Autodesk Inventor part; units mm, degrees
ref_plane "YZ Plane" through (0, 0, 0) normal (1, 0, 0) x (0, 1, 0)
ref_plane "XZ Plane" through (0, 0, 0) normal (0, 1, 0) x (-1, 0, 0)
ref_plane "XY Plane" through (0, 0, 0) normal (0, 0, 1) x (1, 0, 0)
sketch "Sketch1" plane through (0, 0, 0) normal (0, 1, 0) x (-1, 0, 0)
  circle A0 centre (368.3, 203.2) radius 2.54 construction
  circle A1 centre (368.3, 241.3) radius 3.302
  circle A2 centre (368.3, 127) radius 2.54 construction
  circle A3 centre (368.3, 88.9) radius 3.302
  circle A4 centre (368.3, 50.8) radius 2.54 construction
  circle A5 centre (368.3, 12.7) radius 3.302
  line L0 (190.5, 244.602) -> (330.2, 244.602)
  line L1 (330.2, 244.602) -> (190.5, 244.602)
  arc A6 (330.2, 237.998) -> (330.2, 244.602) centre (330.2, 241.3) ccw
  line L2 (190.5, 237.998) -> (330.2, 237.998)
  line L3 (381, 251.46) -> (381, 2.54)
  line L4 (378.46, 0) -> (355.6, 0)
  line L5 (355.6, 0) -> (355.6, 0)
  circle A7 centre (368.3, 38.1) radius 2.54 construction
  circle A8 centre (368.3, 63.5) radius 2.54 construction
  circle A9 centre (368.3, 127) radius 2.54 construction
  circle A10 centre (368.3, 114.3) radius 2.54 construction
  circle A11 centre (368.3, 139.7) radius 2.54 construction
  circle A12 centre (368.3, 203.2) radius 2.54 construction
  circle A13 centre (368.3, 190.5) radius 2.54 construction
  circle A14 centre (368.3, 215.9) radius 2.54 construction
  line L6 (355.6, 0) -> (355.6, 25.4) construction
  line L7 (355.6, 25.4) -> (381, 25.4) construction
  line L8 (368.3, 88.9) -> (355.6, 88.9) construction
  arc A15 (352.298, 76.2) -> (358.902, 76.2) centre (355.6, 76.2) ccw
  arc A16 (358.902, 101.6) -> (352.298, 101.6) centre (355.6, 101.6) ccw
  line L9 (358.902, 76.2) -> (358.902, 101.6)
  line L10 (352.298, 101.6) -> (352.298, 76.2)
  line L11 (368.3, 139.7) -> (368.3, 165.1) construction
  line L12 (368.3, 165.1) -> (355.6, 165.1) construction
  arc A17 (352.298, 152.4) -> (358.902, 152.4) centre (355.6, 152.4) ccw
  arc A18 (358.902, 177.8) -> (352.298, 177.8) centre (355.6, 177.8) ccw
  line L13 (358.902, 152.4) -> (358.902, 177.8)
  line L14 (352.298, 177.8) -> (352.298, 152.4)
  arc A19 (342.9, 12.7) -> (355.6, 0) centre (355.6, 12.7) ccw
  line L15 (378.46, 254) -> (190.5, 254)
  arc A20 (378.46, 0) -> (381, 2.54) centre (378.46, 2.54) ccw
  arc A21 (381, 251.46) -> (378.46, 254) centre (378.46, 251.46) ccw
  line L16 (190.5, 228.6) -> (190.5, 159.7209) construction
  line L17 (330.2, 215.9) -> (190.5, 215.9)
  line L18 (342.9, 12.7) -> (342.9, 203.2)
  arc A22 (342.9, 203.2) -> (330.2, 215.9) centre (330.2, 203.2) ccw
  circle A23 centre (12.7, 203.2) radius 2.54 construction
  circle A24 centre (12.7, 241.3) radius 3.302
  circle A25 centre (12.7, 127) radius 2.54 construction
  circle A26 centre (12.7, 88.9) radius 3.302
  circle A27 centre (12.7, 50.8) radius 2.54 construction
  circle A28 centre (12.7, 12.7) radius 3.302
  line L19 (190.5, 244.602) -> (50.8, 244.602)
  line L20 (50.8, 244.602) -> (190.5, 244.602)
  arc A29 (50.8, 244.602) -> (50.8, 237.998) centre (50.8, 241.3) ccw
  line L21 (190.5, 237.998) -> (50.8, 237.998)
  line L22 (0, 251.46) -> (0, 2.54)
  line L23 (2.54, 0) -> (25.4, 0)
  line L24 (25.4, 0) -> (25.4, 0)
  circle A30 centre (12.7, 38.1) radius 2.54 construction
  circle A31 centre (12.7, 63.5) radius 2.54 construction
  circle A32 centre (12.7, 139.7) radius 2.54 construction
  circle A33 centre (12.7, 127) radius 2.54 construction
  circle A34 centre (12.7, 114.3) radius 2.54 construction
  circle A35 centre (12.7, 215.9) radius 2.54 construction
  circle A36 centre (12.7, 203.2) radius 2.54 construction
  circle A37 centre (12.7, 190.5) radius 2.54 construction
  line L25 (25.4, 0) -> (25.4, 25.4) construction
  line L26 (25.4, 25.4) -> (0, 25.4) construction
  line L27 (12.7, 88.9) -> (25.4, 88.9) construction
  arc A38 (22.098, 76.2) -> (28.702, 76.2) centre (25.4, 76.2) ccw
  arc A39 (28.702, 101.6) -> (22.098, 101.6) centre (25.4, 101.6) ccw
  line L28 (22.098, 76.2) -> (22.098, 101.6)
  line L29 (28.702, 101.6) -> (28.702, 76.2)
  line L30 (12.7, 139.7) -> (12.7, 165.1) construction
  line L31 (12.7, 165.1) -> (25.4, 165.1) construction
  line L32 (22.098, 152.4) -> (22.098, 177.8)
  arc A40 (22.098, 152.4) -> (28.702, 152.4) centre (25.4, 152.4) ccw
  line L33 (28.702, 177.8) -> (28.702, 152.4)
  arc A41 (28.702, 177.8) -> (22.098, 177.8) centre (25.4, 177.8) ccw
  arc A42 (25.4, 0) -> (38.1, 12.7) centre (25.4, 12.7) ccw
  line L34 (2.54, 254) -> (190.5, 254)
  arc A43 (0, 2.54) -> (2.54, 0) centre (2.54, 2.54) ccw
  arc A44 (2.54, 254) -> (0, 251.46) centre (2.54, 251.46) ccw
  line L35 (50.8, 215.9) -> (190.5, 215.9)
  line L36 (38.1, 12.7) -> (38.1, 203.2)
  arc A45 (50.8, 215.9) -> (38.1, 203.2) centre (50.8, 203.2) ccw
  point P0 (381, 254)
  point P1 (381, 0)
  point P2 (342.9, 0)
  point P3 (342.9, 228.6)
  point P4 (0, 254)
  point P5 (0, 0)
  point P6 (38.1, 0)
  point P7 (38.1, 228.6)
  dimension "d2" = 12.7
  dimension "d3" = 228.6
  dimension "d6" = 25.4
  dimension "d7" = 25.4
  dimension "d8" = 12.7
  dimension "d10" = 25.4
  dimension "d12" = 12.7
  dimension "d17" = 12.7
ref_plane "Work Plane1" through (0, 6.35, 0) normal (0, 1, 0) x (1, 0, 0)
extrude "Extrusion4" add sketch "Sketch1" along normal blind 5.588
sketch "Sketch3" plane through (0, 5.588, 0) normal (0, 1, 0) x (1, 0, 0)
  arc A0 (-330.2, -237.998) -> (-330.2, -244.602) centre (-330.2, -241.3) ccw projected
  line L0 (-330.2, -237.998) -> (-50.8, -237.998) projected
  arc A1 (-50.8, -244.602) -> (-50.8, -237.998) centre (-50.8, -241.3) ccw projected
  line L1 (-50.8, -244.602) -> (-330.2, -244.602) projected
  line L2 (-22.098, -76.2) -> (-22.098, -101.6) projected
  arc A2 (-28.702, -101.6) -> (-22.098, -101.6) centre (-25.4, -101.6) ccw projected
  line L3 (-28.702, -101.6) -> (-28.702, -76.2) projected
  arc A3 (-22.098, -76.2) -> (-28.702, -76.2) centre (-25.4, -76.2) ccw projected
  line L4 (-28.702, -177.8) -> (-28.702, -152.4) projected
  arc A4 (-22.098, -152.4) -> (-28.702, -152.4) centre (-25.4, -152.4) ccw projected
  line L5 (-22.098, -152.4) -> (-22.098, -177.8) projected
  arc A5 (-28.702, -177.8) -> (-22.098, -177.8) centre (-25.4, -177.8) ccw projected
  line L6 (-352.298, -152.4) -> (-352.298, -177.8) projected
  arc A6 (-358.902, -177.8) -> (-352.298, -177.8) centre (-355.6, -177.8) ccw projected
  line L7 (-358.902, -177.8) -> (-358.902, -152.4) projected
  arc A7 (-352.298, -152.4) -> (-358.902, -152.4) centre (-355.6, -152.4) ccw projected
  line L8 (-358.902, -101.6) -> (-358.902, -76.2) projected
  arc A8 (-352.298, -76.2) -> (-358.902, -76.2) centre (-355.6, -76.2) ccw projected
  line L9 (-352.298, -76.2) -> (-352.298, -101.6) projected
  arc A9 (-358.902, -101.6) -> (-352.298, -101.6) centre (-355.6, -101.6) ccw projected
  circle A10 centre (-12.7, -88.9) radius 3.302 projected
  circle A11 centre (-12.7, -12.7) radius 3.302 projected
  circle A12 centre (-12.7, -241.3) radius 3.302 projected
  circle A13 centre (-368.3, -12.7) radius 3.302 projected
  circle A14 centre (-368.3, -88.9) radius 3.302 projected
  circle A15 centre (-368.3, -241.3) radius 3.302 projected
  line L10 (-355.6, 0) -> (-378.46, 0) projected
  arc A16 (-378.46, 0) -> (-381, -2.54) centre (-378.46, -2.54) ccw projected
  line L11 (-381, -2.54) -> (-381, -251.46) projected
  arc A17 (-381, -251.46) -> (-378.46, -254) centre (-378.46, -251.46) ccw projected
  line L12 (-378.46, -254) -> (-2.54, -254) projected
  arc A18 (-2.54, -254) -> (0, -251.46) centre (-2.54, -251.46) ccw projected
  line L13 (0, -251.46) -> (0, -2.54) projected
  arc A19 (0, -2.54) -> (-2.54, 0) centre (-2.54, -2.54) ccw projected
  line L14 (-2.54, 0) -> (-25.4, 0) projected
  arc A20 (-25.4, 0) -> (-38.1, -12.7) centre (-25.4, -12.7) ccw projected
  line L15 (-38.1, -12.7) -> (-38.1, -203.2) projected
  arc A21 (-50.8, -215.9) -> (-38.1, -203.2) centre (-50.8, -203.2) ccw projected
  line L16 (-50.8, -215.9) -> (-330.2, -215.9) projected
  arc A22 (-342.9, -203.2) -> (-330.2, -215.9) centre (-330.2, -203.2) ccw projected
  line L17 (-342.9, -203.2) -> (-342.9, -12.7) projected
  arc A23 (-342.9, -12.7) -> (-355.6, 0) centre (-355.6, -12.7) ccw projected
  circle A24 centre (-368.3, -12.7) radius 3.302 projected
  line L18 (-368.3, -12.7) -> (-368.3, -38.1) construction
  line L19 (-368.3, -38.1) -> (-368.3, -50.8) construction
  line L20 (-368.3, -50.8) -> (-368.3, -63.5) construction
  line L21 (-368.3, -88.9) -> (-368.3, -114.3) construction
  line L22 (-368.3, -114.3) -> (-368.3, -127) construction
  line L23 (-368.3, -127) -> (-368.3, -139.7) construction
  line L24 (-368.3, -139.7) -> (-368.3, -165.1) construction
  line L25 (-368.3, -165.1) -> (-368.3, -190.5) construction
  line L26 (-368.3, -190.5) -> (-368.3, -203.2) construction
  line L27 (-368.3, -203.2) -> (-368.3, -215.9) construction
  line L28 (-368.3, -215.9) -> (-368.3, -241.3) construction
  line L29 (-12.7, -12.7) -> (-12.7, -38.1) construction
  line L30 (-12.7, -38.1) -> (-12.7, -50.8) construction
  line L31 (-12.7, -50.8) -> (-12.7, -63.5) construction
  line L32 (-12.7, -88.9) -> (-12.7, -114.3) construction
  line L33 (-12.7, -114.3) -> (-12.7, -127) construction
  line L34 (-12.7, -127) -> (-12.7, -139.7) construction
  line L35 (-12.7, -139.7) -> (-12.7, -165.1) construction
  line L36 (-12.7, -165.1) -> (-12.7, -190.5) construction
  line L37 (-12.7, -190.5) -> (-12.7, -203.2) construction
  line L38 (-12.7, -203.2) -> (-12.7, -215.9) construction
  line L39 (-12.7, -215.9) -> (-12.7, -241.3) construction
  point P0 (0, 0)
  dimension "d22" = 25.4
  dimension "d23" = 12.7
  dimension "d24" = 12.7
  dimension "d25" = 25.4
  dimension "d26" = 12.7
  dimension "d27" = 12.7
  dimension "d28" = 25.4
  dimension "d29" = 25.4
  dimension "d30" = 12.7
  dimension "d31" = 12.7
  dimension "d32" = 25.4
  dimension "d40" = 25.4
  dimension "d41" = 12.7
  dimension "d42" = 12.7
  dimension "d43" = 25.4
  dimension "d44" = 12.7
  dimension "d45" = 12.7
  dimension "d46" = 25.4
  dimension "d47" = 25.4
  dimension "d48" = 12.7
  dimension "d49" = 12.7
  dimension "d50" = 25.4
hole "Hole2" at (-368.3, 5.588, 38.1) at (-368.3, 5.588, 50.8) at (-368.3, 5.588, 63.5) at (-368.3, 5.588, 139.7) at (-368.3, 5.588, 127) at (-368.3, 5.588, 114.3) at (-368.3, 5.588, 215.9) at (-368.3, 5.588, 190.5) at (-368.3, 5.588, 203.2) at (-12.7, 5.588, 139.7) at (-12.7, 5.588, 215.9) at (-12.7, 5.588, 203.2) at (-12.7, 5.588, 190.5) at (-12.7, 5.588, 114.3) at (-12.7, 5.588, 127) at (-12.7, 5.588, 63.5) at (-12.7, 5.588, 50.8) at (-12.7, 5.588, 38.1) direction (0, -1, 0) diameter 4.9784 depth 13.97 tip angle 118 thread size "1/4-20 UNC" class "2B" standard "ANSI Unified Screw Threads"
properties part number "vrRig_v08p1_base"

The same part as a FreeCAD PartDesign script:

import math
import FreeCAD as App
import Part
import Sketcher

V = App.Vector
Q = App.Units.Quantity

doc = App.newDocument("Part")
body = doc.addObject("PartDesign::Body", "Body")

# Sketch on XZ plane
sketch1 = body.newObject("Sketcher::SketchObject", "Sketch")
sketch1.AttachmentSupport = (doc.getObject("XZ_Plane"), [""])
sketch1.MapMode = "FlatFace"
sketch1.addGeometry(Part.LineSegment(V(-381, 2.54, 0), V(-381, 251.46, 0)), False)
sketch1.addGeometry(Part.ArcOfCircle(Part.Circle(V(-378.46, 251.46, 0), V(0, 0, 1), 2.54), math.radians(90), math.radians(180)), False)
sketch1.addGeometry(Part.LineSegment(V(-378.46, 254, 0), V(-2.54, 254, 0)), False)
sketch1.addGeometry(Part.ArcOfCircle(Part.Circle(V(-2.54, 251.46, 0), V(0, 0, 1), 2.54), math.radians(0), math.radians(90)), False)
sketch1.addGeometry(Part.LineSegment(V(0, 251.46, 0), V(0, 2.54, 0)), False)
sketch1.addGeometry(Part.ArcOfCircle(Part.Circle(V(-2.54, 2.54, 0), V(0, 0, 1), 2.54), math.radians(-90), math.radians(0)), False)
sketch1.addGeometry(Part.LineSegment(V(-2.54, 0, 0), V(-25.4, 0, 0)), False)
sketch1.addGeometry(Part.ArcOfCircle(Part.Circle(V(-25.4, 12.7, 0), V(0, 0, 1), 12.7), math.radians(180), math.radians(270)), False)
sketch1.addGeometry(Part.LineSegment(V(-38.1, 12.7, 0), V(-38.1, 203.2, 0)), False)
sketch1.addGeometry(Part.ArcOfCircle(Part.Circle(V(-50.8, 203.2, 0), V(0, 0, 1), 12.7), math.radians(0), math.radians(90)), False)
sketch1.addGeometry(Part.LineSegment(V(-50.8, 215.9, 0), V(-330.2, 215.9, 0)), False)
sketch1.addGeometry(Part.ArcOfCircle(Part.Circle(V(-330.2, 203.2, 0), V(0, 0, 1), 12.7), math.radians(90), math.radians(180)), False)
sketch1.addGeometry(Part.LineSegment(V(-342.9, 203.2, 0), V(-342.9, 12.7, 0)), False)
sketch1.addGeometry(Part.ArcOfCircle(Part.Circle(V(-355.6, 12.7, 0), V(0, 0, 1), 12.7), math.radians(-90), math.radians(0)), False)
sketch1.addGeometry(Part.LineSegment(V(-355.6, 0, 0), V(-378.46, 0, 0)), False)
sketch1.addGeometry(Part.ArcOfCircle(Part.Circle(V(-378.46, 2.54, 0), V(0, 0, 1), 2.54), math.radians(180), math.radians(270)), False)
sketch1.addGeometry(Part.Circle(V(-12.7, 12.7, 0), V(0, 0, 1), 3.302), False)
sketch1.addGeometry(Part.Circle(V(-12.7, 88.9, 0), V(0, 0, 1), 3.302), False)
sketch1.addGeometry(Part.ArcOfCircle(Part.Circle(V(-25.4, 76.2, 0), V(0, 0, 1), 3.302), math.radians(180), math.radians(360)), False)
sketch1.addGeometry(Part.LineSegment(V(-22.098, 76.2, 0), V(-22.098, 101.6, 0)), False)
sketch1.addGeometry(Part.ArcOfCircle(Part.Circle(V(-25.4, 101.6, 0), V(0, 0, 1), 3.302), math.radians(0), math.radians(180)), False)
sketch1.addGeometry(Part.LineSegment(V(-28.702, 101.6, 0), V(-28.702, 76.2, 0)), False)
sketch1.addGeometry(Part.Circle(V(-368.3, 12.7, 0), V(0, 0, 1), 3.302), False)
sketch1.addGeometry(Part.ArcOfCircle(Part.Circle(V(-355.6, 76.2, 0), V(0, 0, 1), 3.302), math.radians(180), math.radians(360)), False)
sketch1.addGeometry(Part.LineSegment(V(-352.298, 76.2, 0), V(-352.298, 101.6, 0)), False)
sketch1.addGeometry(Part.ArcOfCircle(Part.Circle(V(-355.6, 101.6, 0), V(0, 0, 1), 3.302), math.radians(0), math.radians(180)), False)
sketch1.addGeometry(Part.LineSegment(V(-358.902, 101.6, 0), V(-358.902, 76.2, 0)), False)
sketch1.addGeometry(Part.Circle(V(-368.3, 88.9, 0), V(0, 0, 1), 3.302), False)
sketch1.addGeometry(Part.ArcOfCircle(Part.Circle(V(-25.4, 152.4, 0), V(0, 0, 1), 3.302), math.radians(180), math.radians(360)), False)
sketch1.addGeometry(Part.LineSegment(V(-22.098, 152.4, 0), V(-22.098, 177.8, 0)), False)
sketch1.addGeometry(Part.ArcOfCircle(Part.Circle(V(-25.4, 177.8, 0), V(0, 0, 1), 3.302), math.radians(0), math.radians(180)), False)
sketch1.addGeometry(Part.LineSegment(V(-28.702, 177.8, 0), V(-28.702, 152.4, 0)), False)
sketch1.addGeometry(Part.Circle(V(-12.7, 241.3, 0), V(0, 0, 1), 3.302), False)
sketch1.addGeometry(Part.ArcOfCircle(Part.Circle(V(-355.6, 152.4, 0), V(0, 0, 1), 3.302), math.radians(180), math.radians(360)), False)
sketch1.addGeometry(Part.LineSegment(V(-352.298, 152.4, 0), V(-352.298, 177.8, 0)), False)
sketch1.addGeometry(Part.ArcOfCircle(Part.Circle(V(-355.6, 177.8, 0), V(0, 0, 1), 3.302), math.radians(0), math.radians(180)), False)
sketch1.addGeometry(Part.LineSegment(V(-358.902, 177.8, 0), V(-358.902, 152.4, 0)), False)
sketch1.addGeometry(Part.LineSegment(V(-50.8, 244.602, 0), V(-330.2, 244.602, 0)), False)
sketch1.addGeometry(Part.ArcOfCircle(Part.Circle(V(-330.2, 241.3, 0), V(0, 0, 1), 3.302), math.radians(90), math.radians(270)), False)
sketch1.addGeometry(Part.LineSegment(V(-330.2, 237.998, 0), V(-50.8, 237.998, 0)), False)
sketch1.addGeometry(Part.ArcOfCircle(Part.Circle(V(-50.8, 241.3, 0), V(0, 0, 1), 3.302), math.radians(-90), math.radians(90)), False)
sketch1.addGeometry(Part.Circle(V(-368.3, 241.3, 0), V(0, 0, 1), 3.302), False)
sketch1.addConstraint(Sketcher.Constraint("Tangent", 0, 2, 1, 2))
sketch1.addConstraint(Sketcher.Constraint("Tangent", 1, 1, 2, 1))
sketch1.addConstraint(Sketcher.Constraint("Tangent", 2, 2, 3, 2))
sketch1.addConstraint(Sketcher.Constraint("Tangent", 3, 1, 4, 1))
sketch1.addConstraint(Sketcher.Constraint("Tangent", 4, 2, 5, 2))
sketch1.addConstraint(Sketcher.Constraint("Tangent", 5, 1, 6, 1))
sketch1.addConstraint(Sketcher.Constraint("Tangent", 6, 2, 7, 2))
sketch1.addConstraint(Sketcher.Constraint("Tangent", 7, 1, 8, 1))
sketch1.addConstraint(Sketcher.Constraint("Tangent", 8, 2, 9, 1))
sketch1.addConstraint(Sketcher.Constraint("Tangent", 9, 2, 10, 1))
sketch1.addConstraint(Sketcher.Constraint("Tangent", 10, 2, 11, 1))
sketch1.addConstraint(Sketcher.Constraint("Tangent", 11, 2, 12, 1))
sketch1.addConstraint(Sketcher.Constraint("Tangent", 12, 2, 13, 2))
sketch1.addConstraint(Sketcher.Constraint("Tangent", 13, 1, 14, 1))
sketch1.addConstraint(Sketcher.Constraint("Tangent", 14, 2, 15, 2))
sketch1.addConstraint(Sketcher.Constraint("Tangent", 15, 1, 0, 1))
sketch1.addConstraint(Sketcher.Constraint("Tangent", 18, 2, 19, 1))
sketch1.addConstraint(Sketcher.Constraint("Tangent", 19, 2, 20, 1))
sketch1.addConstraint(Sketcher.Constraint("Tangent", 20, 2, 21, 1))
sketch1.addConstraint(Sketcher.Constraint("Tangent", 21, 2, 18, 1))
sketch1.addConstraint(Sketcher.Constraint("Tangent", 23, 2, 24, 1))
sketch1.addConstraint(Sketcher.Constraint("Tangent", 24, 2, 25, 1))
sketch1.addConstraint(Sketcher.Constraint("Tangent", 25, 2, 26, 1))
sketch1.addConstraint(Sketcher.Constraint("Tangent", 26, 2, 23, 1))
sketch1.addConstraint(Sketcher.Constraint("Tangent", 28, 2, 29, 1))
sketch1.addConstraint(Sketcher.Constraint("Tangent", 29, 2, 30, 1))
sketch1.addConstraint(Sketcher.Constraint("Tangent", 30, 2, 31, 1))
sketch1.addConstraint(Sketcher.Constraint("Tangent", 31, 2, 28, 1))
sketch1.addConstraint(Sketcher.Constraint("Tangent", 33, 2, 34, 1))
sketch1.addConstraint(Sketcher.Constraint("Tangent", 34, 2, 35, 1))
sketch1.addConstraint(Sketcher.Constraint("Tangent", 35, 2, 36, 1))
sketch1.addConstraint(Sketcher.Constraint("Tangent", 36, 2, 33, 1))
sketch1.addConstraint(Sketcher.Constraint("Tangent", 37, 2, 38, 1))
sketch1.addConstraint(Sketcher.Constraint("Tangent", 38, 2, 39, 1))
sketch1.addConstraint(Sketcher.Constraint("Tangent", 39, 2, 40, 1))
sketch1.addConstraint(Sketcher.Constraint("Tangent", 40, 2, 37, 1))
sketch1.addConstraint(Sketcher.Constraint("Vertical", 0))
sketch1.addConstraint(Sketcher.Constraint("Horizontal", 2))
sketch1.addConstraint(Sketcher.Constraint("Vertical", 4))
sketch1.addConstraint(Sketcher.Constraint("Horizontal", 6))
sketch1.addConstraint(Sketcher.Constraint("Vertical", 8))
sketch1.addConstraint(Sketcher.Constraint("Horizontal", 10))
sketch1.addConstraint(Sketcher.Constraint("Vertical", 12))
sketch1.addConstraint(Sketcher.Constraint("Horizontal", 14))
sketch1.addConstraint(Sketcher.Constraint("Vertical", 19))
sketch1.addConstraint(Sketcher.Constraint("Vertical", 21))
sketch1.addConstraint(Sketcher.Constraint("Vertical", 24))
sketch1.addConstraint(Sketcher.Constraint("Vertical", 26))
sketch1.addConstraint(Sketcher.Constraint("Vertical", 29))
sketch1.addConstraint(Sketcher.Constraint("Vertical", 31))
sketch1.addConstraint(Sketcher.Constraint("Vertical", 34))
sketch1.addConstraint(Sketcher.Constraint("Vertical", 36))
sketch1.addConstraint(Sketcher.Constraint("Horizontal", 37))
sketch1.addConstraint(Sketcher.Constraint("Horizontal", 39))
sketch1.addConstraint(Sketcher.Constraint("Equal", 1, 3))
sketch1.addConstraint(Sketcher.Constraint("Equal", 3, 5))
sketch1.addConstraint(Sketcher.Constraint("Equal", 7, 9))
sketch1.addConstraint(Sketcher.Constraint("Equal", 9, 11))
sketch1.addConstraint(Sketcher.Constraint("Equal", 11, 13))
sketch1.addConstraint(Sketcher.Constraint("Equal", 5, 15))
sketch1.addConstraint(Sketcher.Constraint("Equal", 16, 17))
sketch1.addConstraint(Sketcher.Constraint("Equal", 17, 18))
sketch1.addConstraint(Sketcher.Constraint("Equal", 20, 22))
sketch1.addConstraint(Sketcher.Constraint("Equal", 22, 23))
sketch1.addConstraint(Sketcher.Constraint("Equal", 25, 27))
sketch1.addConstraint(Sketcher.Constraint("Equal", 27, 28))
sketch1.addConstraint(Sketcher.Constraint("Equal", 30, 32))
sketch1.addConstraint(Sketcher.Constraint("Equal", 32, 33))
sketch1.addConstraint(Sketcher.Constraint("Equal", 35, 38))
sketch1.addConstraint(Sketcher.Constraint("Equal", 40, 41))
sketch1.addConstraint(Sketcher.Constraint("PointOnObject", 3, 1, -2))
sketch1.addConstraint(Sketcher.Constraint("PointOnObject", 5, 1, -1))
sketch1.addConstraint(Sketcher.Constraint("PointOnObject", 13, 1, -1))
sketch1.addConstraint(Sketcher.Constraint("Horizontal", 13, 3, 16, 3))
sketch1.addConstraint(Sketcher.Constraint("Horizontal", 16, 3, 22, 3))
sketch1.addConstraint(Sketcher.Constraint("Horizontal", 18, 3, 23, 3))
sketch1.addConstraint(Sketcher.Constraint("Horizontal", 20, 3, 25, 3))
sketch1.addConstraint(Sketcher.Constraint("Horizontal", 17, 3, 27, 3))
sketch1.addConstraint(Sketcher.Constraint("Horizontal", 28, 3, 33, 3))
sketch1.addConstraint(Sketcher.Constraint("Horizontal", 30, 3, 35, 3))
sketch1.addConstraint(Sketcher.Constraint("Horizontal", 32, 3, 38, 3))
sketch1.addConstraint(Sketcher.Constraint("Horizontal", 40, 3, 41, 3))
sketch1.addConstraint(Sketcher.Constraint("Vertical", 16, 3, 17, 3))
sketch1.addConstraint(Sketcher.Constraint("Vertical", 7, 3, 18, 3))
sketch1.addConstraint(Sketcher.Constraint("Vertical", 13, 3, 23, 3))
sketch1.addConstraint(Sketcher.Constraint("Vertical", 22, 3, 27, 3))
sketch1.addConstraint(Sketcher.Constraint("Vertical", 20, 3, 28, 3))
sketch1.addConstraint(Sketcher.Constraint("Vertical", 17, 3, 32, 3))
sketch1.addConstraint(Sketcher.Constraint("Vertical", 25, 3, 33, 3))
sketch1.addConstraint(Sketcher.Constraint("Vertical", 11, 3, 38, 3))
sketch1.addConstraint(Sketcher.Constraint("Vertical", 9, 3, 40, 3))
sketch1.addConstraint(Sketcher.Constraint("Vertical", 27, 3, 41, 3))
sketch1.addConstraint(Sketcher.Constraint("Equal", 6, 14))
sketch1.addConstraint(Sketcher.Constraint("Equal", 26, 29))
sketch1.addConstraint(Sketcher.Constraint("Radius", 7, Q("0.5 in")))
sketch1.addConstraint(Sketcher.Constraint("DistanceY", 19, 1, 19, 2, Q("1 in")))
sketch1.addConstraint(Sketcher.Constraint("DistanceX", 7, 3, -1, 1, Q("1 in")))
sketch1.addConstraint(Sketcher.Constraint("DistanceY", 30, 3, 9, 3, Q("1 in")))
sketch1.addConstraint(Sketcher.Constraint("DistanceX", 7, 1, 16, 3, Q("1 in")))
sketch1.addConstraint(Sketcher.Constraint("DistanceY", 9, 2, 40, 3, Q("1 in")))
sketch1.addConstraint(Sketcher.Constraint("DistanceX", 41, 3, 11, 2, Q("1 in")))
sketch1.addConstraint(Sketcher.Constraint("Radius", 1, Q("0.1 in")))
sketch1.addConstraint(Sketcher.Constraint("DistanceY", 18, 3, 17, 3, Q("0.5 in")))
sketch1.addConstraint(Sketcher.Constraint("DistanceY", 41, 3, 1, 1, Q("0.5 in")))
sketch1.addConstraint(Sketcher.Constraint("Diameter", 16, Q("0.26 in")))
sketch1.addConstraint(Sketcher.Constraint("DistanceX", 10, 2, 10, 1, Q("11 in")))
sketch1.addConstraint(Sketcher.Constraint("DistanceY", 0, 1, 0, 2, Q("9.8 in")))
sketch1.addConstraint(Sketcher.Constraint("DistanceY", -1, 1, 18, 3, Q("3 in")))
pad1 = body.newObject("PartDesign::Pad", "Pad")
pad1.Profile = sketch1
pad1.Length = Q("0.22 in")
pad1.Reversed = True

# Sketch on XZ plane
sketch2 = body.newObject("Sketcher::SketchObject", "Sketch001")
sketch2.AttachmentSupport = (doc.getObject("XZ_Plane"), [""])
sketch2.MapMode = "FlatFace"
sketch2.AttachmentOffset = App.Placement(V(0, 0, -0.22 * 25.4), App.Rotation())
sketch2.addGeometry(Part.Circle(V(-368.3, 38.1, 0), V(0, 0, 1), 2.4892), False)
sketch2.addGeometry(Part.Circle(V(-368.3, 50.8, 0), V(0, 0, 1), 2.4892), False)
sketch2.addGeometry(Part.Circle(V(-368.3, 63.5, 0), V(0, 0, 1), 2.4892), False)
sketch2.addGeometry(Part.Circle(V(-368.3, 139.7, 0), V(0, 0, 1), 2.4892), False)
sketch2.addGeometry(Part.Circle(V(-368.3, 127, 0), V(0, 0, 1), 2.4892), False)
sketch2.addGeometry(Part.Circle(V(-368.3, 114.3, 0), V(0, 0, 1), 2.4892), False)
sketch2.addGeometry(Part.Circle(V(-368.3, 215.9, 0), V(0, 0, 1), 2.4892), False)
sketch2.addGeometry(Part.Circle(V(-368.3, 190.5, 0), V(0, 0, 1), 2.4892), False)
sketch2.addGeometry(Part.Circle(V(-368.3, 203.2, 0), V(0, 0, 1), 2.4892), False)
sketch2.addGeometry(Part.Circle(V(-12.7, 139.7, 0), V(0, 0, 1), 2.4892), False)
sketch2.addGeometry(Part.Circle(V(-12.7, 215.9, 0), V(0, 0, 1), 2.4892), False)
sketch2.addGeometry(Part.Circle(V(-12.7, 203.2, 0), V(0, 0, 1), 2.4892), False)
sketch2.addGeometry(Part.Circle(V(-12.7, 190.5, 0), V(0, 0, 1), 2.4892), False)
sketch2.addGeometry(Part.Circle(V(-12.7, 114.3, 0), V(0, 0, 1), 2.4892), False)
sketch2.addGeometry(Part.Circle(V(-12.7, 127, 0), V(0, 0, 1), 2.4892), False)
sketch2.addGeometry(Part.Circle(V(-12.7, 63.5, 0), V(0, 0, 1), 2.4892), False)
sketch2.addGeometry(Part.Circle(V(-12.7, 50.8, 0), V(0, 0, 1), 2.4892), False)
sketch2.addGeometry(Part.Circle(V(-12.7, 38.1, 0), V(0, 0, 1), 2.4892), False)
sketch2.addConstraint(Sketcher.Constraint("Equal", 0, 1))
sketch2.addConstraint(Sketcher.Constraint("Equal", 1, 2))
sketch2.addConstraint(Sketcher.Constraint("Equal", 2, 3))
sketch2.addConstraint(Sketcher.Constraint("Equal", 3, 4))
sketch2.addConstraint(Sketcher.Constraint("Equal", 4, 5))
sketch2.addConstraint(Sketcher.Constraint("Equal", 5, 6))
sketch2.addConstraint(Sketcher.Constraint("Equal", 6, 7))
sketch2.addConstraint(Sketcher.Constraint("Equal", 7, 8))
sketch2.addConstraint(Sketcher.Constraint("Equal", 8, 9))
sketch2.addConstraint(Sketcher.Constraint("Equal", 9, 10))
sketch2.addConstraint(Sketcher.Constraint("Equal", 10, 11))
sketch2.addConstraint(Sketcher.Constraint("Equal", 11, 12))
sketch2.addConstraint(Sketcher.Constraint("Equal", 12, 13))
sketch2.addConstraint(Sketcher.Constraint("Equal", 13, 14))
sketch2.addConstraint(Sketcher.Constraint("Equal", 14, 15))
sketch2.addConstraint(Sketcher.Constraint("Equal", 15, 16))
sketch2.addConstraint(Sketcher.Constraint("Equal", 16, 17))
sketch2.addConstraint(Sketcher.Constraint("Horizontal", 3, 3, 9, 3))
sketch2.addConstraint(Sketcher.Constraint("Horizontal", 6, 3, 10, 3))
sketch2.addConstraint(Sketcher.Constraint("Horizontal", 8, 3, 11, 3))
sketch2.addConstraint(Sketcher.Constraint("Horizontal", 7, 3, 12, 3))
sketch2.addConstraint(Sketcher.Constraint("Horizontal", 5, 3, 13, 3))
sketch2.addConstraint(Sketcher.Constraint("Horizontal", 4, 3, 14, 3))
sketch2.addConstraint(Sketcher.Constraint("Horizontal", 2, 3, 15, 3))
sketch2.addConstraint(Sketcher.Constraint("Horizontal", 1, 3, 16, 3))
sketch2.addConstraint(Sketcher.Constraint("Horizontal", 0, 3, 17, 3))
sketch2.addConstraint(Sketcher.Constraint("Vertical", 0, 3, 1, 3))
sketch2.addConstraint(Sketcher.Constraint("Vertical", 1, 3, 2, 3))
sketch2.addConstraint(Sketcher.Constraint("Vertical", 2, 3, 3, 3))
sketch2.addConstraint(Sketcher.Constraint("Vertical", 3, 3, 4, 3))
sketch2.addConstraint(Sketcher.Constraint("Vertical", 4, 3, 5, 3))
sketch2.addConstraint(Sketcher.Constraint("Vertical", 5, 3, 6, 3))
sketch2.addConstraint(Sketcher.Constraint("Vertical", 6, 3, 7, 3))
sketch2.addConstraint(Sketcher.Constraint("Vertical", 7, 3, 8, 3))
sketch2.addConstraint(Sketcher.Constraint("Vertical", 9, 3, 10, 3))
sketch2.addConstraint(Sketcher.Constraint("Vertical", 10, 3, 11, 3))
sketch2.addConstraint(Sketcher.Constraint("Vertical", 11, 3, 12, 3))
sketch2.addConstraint(Sketcher.Constraint("Vertical", 12, 3, 13, 3))
sketch2.addConstraint(Sketcher.Constraint("Vertical", 13, 3, 14, 3))
sketch2.addConstraint(Sketcher.Constraint("Vertical", 14, 3, 15, 3))
sketch2.addConstraint(Sketcher.Constraint("Vertical", 15, 3, 16, 3))
sketch2.addConstraint(Sketcher.Constraint("Vertical", 16, 3, 17, 3))
sketch2.addConstraint(Sketcher.Constraint("Diameter", 0, Q("0.196 in")))
sketch2.addConstraint(Sketcher.Constraint("DistanceY", -1, 1, 1, 3, Q("2 in")))
sketch2.addConstraint(Sketcher.Constraint("DistanceY", -1, 1, 4, 3, Q("5 in")))
sketch2.addConstraint(Sketcher.Constraint("DistanceY", -1, 1, 8, 3, Q("8 in")))
sketch2.addConstraint(Sketcher.Constraint("DistanceY", 0, 3, 2, 3, Q("1 in")))
sketch2.addConstraint(Sketcher.Constraint("DistanceY", 2, 3, 3, 3, Q("3 in")))
sketch2.addConstraint(Sketcher.Constraint("DistanceY", 5, 3, 3, 3, Q("1 in")))
sketch2.addConstraint(Sketcher.Constraint("DistanceY", 3, 3, 6, 3, Q("3 in")))
sketch2.addConstraint(Sketcher.Constraint("DistanceY", 7, 3, 6, 3, Q("1 in")))
sketch2.addConstraint(Sketcher.Constraint("DistanceX", 3, 3, 9, 3, Q("14 in")))
sketch2.addConstraint(Sketcher.Constraint("DistanceX", 0, 3, -1, 1, Q("14.5 in")))
sketch2.addConstraint(Sketcher.Constraint("DistanceY", -1, 1, 0, 3, Q("1.5 in")))
doc.recompute()
hole = body.newObject("PartDesign::Hole", "Hole")
hole.Profile = sketch2
hole.ThreadType = "None"
hole.Diameter = Q("0.196 in")
hole.DepthType = "Dimension"
hole.Depth = Q("0.55 in")
hole.DrillPoint = "Angled"
hole.DrillPointAngle = 118
hole.Reversed = True

doc.recompute()
